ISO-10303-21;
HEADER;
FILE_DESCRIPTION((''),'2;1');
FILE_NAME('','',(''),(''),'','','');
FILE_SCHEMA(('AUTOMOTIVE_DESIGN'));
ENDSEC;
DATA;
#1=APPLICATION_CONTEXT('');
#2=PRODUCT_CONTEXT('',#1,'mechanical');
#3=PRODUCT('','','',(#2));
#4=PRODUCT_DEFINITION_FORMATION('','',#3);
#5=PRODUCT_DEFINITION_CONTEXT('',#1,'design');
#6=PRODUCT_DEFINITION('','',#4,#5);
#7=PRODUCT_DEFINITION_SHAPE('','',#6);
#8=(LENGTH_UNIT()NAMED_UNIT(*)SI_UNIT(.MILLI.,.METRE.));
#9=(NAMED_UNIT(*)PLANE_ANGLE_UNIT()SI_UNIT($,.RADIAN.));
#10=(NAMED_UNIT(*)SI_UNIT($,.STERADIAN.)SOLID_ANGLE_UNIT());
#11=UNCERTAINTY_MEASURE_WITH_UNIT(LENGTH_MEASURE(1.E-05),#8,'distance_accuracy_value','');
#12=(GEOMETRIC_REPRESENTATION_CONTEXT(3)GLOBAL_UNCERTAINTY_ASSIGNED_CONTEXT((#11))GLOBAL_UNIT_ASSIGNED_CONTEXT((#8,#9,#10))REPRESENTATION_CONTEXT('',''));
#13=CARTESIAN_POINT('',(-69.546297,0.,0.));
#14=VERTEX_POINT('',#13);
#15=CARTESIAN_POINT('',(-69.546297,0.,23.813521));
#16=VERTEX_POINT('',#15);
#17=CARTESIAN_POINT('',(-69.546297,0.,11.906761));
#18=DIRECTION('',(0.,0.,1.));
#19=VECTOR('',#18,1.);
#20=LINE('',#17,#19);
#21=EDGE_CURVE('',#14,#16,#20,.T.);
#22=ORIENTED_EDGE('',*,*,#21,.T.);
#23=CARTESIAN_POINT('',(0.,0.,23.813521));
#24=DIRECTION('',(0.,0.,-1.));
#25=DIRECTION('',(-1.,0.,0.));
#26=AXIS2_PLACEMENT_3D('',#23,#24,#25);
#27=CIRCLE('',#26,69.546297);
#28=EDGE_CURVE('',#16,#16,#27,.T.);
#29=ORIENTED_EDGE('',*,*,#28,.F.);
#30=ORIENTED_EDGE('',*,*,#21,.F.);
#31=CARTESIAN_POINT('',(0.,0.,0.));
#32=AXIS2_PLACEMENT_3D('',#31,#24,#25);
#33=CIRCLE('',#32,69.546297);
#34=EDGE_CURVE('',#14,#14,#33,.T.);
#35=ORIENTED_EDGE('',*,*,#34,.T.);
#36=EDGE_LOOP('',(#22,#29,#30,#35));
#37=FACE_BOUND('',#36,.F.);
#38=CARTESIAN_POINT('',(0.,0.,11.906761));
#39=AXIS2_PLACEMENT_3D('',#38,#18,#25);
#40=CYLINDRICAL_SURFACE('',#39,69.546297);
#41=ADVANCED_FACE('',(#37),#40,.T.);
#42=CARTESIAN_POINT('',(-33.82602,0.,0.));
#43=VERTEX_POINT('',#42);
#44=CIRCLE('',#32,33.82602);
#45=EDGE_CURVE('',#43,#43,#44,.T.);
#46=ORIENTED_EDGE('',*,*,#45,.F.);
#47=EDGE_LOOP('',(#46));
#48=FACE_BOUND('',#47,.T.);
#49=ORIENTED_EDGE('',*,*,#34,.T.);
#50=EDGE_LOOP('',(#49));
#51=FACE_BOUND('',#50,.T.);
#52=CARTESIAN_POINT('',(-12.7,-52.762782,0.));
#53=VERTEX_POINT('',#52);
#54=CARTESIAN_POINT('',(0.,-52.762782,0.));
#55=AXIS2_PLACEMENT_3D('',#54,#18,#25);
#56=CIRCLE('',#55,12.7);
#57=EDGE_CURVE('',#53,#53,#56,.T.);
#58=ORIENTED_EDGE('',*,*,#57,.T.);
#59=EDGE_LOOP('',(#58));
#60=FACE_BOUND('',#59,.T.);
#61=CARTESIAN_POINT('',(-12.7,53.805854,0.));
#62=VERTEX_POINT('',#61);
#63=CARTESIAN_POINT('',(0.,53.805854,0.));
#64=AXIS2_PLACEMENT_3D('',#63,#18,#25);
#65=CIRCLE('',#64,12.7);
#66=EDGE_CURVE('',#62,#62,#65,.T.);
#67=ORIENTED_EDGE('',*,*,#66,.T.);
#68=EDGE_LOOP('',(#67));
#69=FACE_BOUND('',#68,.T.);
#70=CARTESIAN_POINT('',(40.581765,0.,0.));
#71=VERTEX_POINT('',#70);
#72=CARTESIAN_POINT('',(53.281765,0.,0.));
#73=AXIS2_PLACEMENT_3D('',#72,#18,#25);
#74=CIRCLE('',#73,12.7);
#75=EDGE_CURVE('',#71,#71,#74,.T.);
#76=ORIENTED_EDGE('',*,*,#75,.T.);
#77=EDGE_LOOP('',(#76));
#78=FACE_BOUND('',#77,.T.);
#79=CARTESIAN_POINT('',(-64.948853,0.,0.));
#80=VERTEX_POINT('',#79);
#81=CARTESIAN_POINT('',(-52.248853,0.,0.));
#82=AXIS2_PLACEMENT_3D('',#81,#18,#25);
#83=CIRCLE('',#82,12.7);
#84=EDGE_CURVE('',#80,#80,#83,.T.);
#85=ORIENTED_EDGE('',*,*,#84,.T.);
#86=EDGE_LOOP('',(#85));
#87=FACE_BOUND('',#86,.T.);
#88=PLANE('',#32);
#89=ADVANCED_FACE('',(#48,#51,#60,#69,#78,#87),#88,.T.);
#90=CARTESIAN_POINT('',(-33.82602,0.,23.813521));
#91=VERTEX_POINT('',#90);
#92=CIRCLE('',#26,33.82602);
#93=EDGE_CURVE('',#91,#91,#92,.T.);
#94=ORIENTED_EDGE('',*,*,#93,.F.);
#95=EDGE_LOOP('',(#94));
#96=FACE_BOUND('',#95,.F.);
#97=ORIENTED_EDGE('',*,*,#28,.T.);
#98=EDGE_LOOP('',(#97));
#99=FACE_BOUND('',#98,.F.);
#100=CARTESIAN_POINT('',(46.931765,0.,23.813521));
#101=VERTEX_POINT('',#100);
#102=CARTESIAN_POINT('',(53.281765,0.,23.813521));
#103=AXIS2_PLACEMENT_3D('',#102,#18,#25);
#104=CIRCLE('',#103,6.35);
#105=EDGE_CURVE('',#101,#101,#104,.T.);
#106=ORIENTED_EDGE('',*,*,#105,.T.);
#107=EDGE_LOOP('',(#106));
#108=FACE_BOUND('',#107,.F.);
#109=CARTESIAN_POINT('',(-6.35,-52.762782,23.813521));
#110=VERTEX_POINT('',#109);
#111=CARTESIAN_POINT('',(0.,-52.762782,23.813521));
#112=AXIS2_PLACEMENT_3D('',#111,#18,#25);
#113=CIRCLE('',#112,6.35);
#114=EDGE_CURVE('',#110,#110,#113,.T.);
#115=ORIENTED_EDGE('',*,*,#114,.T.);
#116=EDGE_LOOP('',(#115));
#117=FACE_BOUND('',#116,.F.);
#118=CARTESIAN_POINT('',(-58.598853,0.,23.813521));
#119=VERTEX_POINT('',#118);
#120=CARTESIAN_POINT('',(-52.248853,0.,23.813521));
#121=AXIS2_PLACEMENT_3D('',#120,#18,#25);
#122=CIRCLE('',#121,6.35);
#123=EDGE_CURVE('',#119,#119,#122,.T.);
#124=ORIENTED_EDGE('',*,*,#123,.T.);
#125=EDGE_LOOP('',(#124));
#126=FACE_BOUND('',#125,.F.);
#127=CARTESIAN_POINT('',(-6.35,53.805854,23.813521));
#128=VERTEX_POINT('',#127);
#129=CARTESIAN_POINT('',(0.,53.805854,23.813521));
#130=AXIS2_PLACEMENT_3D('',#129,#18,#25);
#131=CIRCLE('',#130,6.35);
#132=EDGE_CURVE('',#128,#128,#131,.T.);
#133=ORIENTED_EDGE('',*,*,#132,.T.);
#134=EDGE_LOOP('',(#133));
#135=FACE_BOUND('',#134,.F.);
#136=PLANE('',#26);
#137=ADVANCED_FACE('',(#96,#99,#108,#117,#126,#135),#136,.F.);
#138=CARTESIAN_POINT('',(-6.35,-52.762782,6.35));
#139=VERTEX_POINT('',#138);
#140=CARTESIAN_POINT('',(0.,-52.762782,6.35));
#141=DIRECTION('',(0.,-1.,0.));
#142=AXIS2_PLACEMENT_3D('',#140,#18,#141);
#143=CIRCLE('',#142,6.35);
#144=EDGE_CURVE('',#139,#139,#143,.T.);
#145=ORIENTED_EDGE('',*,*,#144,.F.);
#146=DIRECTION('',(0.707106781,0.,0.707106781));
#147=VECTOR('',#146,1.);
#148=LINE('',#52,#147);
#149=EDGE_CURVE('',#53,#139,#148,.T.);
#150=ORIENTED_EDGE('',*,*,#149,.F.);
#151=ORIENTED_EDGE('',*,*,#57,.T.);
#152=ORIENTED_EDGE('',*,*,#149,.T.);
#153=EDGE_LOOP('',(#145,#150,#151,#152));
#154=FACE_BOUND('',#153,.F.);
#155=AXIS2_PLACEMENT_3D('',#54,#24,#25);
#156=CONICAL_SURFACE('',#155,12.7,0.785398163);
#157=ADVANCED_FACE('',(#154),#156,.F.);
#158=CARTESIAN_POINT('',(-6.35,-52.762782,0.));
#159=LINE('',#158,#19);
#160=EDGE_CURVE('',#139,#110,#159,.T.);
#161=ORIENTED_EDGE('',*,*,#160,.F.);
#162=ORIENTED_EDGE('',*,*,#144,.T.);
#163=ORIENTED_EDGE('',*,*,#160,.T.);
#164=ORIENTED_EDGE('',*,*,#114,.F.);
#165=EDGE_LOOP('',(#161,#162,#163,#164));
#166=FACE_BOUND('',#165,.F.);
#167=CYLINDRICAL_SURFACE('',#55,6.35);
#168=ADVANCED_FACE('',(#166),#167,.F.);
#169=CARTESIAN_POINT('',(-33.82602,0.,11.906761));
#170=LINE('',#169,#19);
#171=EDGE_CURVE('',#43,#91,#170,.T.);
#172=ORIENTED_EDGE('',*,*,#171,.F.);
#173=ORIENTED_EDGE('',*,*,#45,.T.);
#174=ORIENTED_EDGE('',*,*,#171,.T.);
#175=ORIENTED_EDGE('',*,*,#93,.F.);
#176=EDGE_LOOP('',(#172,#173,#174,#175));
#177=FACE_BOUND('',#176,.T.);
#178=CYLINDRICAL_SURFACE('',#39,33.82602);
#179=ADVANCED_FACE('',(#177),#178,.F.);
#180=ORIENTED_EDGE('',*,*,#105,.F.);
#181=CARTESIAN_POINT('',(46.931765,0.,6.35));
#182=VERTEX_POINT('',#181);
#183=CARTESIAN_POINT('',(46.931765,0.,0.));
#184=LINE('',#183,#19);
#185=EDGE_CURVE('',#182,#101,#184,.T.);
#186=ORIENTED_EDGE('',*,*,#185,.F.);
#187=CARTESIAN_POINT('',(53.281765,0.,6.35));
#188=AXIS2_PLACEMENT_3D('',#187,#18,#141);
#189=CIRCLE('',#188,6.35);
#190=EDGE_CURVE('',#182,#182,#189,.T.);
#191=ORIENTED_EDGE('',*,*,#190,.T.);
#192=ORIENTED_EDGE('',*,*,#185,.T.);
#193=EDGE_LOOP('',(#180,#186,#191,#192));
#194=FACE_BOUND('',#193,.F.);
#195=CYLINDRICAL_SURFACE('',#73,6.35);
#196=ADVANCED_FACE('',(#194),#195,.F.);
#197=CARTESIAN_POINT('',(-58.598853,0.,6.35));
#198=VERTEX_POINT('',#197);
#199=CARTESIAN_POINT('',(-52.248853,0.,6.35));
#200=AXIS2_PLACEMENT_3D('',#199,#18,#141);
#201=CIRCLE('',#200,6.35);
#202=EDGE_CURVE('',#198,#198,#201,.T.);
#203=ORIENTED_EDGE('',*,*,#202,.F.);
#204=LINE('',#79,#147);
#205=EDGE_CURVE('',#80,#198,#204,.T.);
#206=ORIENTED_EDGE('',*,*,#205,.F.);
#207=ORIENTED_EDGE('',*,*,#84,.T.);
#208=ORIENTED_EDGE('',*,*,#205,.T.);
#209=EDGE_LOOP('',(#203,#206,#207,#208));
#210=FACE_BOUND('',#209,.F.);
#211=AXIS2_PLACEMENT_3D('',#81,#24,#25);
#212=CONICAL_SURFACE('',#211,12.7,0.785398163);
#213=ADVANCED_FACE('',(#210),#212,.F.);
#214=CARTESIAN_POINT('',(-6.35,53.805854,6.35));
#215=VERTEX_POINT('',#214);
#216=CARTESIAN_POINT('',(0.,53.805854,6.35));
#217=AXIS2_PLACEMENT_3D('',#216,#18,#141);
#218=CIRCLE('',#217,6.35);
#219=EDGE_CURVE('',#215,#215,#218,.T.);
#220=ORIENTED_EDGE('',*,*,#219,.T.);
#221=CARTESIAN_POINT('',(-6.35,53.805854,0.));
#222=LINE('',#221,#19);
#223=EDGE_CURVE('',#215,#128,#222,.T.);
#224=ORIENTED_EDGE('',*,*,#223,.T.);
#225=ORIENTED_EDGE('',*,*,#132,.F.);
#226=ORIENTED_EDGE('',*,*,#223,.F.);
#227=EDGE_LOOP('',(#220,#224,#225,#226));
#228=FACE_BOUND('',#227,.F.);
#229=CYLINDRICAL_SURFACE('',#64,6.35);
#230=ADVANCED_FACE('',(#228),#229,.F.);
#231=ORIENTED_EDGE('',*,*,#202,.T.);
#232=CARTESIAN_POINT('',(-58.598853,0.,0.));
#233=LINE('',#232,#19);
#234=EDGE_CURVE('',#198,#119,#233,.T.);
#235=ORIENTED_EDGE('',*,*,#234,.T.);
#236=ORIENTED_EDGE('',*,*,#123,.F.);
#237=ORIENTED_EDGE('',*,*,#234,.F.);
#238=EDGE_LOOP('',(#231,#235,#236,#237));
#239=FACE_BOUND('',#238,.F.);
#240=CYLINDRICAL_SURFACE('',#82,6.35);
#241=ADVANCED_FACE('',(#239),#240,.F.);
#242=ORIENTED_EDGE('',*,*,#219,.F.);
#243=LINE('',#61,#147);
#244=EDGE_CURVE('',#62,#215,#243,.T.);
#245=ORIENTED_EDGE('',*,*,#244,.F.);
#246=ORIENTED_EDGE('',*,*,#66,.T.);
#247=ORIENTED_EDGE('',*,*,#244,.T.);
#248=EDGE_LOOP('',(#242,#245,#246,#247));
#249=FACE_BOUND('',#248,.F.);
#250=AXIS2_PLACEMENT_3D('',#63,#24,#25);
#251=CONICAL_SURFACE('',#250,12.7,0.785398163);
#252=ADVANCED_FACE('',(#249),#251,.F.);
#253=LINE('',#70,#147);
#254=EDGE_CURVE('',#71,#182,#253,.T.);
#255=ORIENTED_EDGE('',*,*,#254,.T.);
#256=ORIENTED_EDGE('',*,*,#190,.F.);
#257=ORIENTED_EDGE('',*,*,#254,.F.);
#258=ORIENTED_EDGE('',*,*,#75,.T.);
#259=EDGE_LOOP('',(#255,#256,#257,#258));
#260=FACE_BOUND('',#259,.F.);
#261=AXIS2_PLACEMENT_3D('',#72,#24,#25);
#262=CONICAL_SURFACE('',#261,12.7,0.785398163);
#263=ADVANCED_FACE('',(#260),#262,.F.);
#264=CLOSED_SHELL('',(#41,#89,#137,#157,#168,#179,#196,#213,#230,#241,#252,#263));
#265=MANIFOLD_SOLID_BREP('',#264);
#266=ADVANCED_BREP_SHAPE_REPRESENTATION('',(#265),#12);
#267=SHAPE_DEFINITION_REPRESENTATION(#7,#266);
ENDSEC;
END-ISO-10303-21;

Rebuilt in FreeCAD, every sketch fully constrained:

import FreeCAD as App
import Part
import Sketcher
from FreeCAD import Vector
Q = App.Units.Quantity


def add_polygon(sketch, points):
    """Adds a closed chain of lines whose ends are joined by coincident constraints."""
    first, n = sketch.GeometryCount, len(points)
    for a, b in zip(points, points[1:] + points[:1]):
        sketch.addGeometry(Part.LineSegment(App.Vector(*a, 0), App.Vector(*b, 0)), False)
    for i in range(n):
        sketch.addConstraint(Sketcher.Constraint("Coincident", first + i, 2, first + (i + 1) % n, 1))

doc = App.newDocument("Part")
body = doc.addObject("PartDesign::Body", "Body")

# Sketch on XZ plane
sketch1 = body.newObject("Sketcher::SketchObject", "Sketch")
sketch1.AttachmentSupport = (doc.getObject("XZ_Plane"), [""])
sketch1.MapMode = "FlatFace"
add_polygon(sketch1, [(-70, 24), (-70, 0), (-34, 0), (-34, 24)])  # lines 0-3
sketch1.addConstraint([
    Sketcher.Constraint("Vertical", 0),
    Sketcher.Constraint("Horizontal", 1),
    Sketcher.Constraint("Vertical", 2),
    Sketcher.Constraint("Horizontal", 3),
    Sketcher.Constraint("PointOnObject", 0, 2, -1),
    Sketcher.Constraint("DistanceY", 0, 2, 0, 1, 23.813521),
    Sketcher.Constraint("DistanceX", 1, 1, 1, 2, 35.720278),
    Sketcher.Constraint("DistanceX", 1, 2, -1, 1, 33.82602),
])
revolution = body.newObject("PartDesign::Revolution", "Revolution")
revolution.Profile = sketch1
revolution.ReferenceAxis = (sketch1, ["V_Axis"])
revolution.Angle = 360

# Sketch on XY plane
sketch2 = body.newObject("Sketcher::SketchObject", "Sketch001")
sketch2.AttachmentSupport = (doc.getObject("XY_Plane"), [""])
sketch2.MapMode = "FlatFace"
sketch2.addGeometry([
    Part.Circle(Vector(53, 0, 0), Vector(0, 0, 1), 6),
    Part.Circle(Vector(0, -53, 0), Vector(0, 0, 1), 6),
    Part.Circle(Vector(-52, 0, 0), Vector(0, 0, 1), 6),
    Part.Circle(Vector(0, 54, 0), Vector(0, 0, 1), 6),
], False)
sketch2.addConstraint([
    Sketcher.Constraint("Equal", 0, 1),
    Sketcher.Constraint("Equal", 1, 2),
    Sketcher.Constraint("Equal", 2, 3),
    Sketcher.Constraint("PointOnObject", 0, 3, -1),
    Sketcher.Constraint("PointOnObject", 1, 3, -2),
    Sketcher.Constraint("PointOnObject", 2, 3, -1),
    Sketcher.Constraint("PointOnObject", 3, 3, -2),
    Sketcher.Constraint("Diameter", 0, Q("0.5 in")),
    Sketcher.Constraint("DistanceY", 1, 3, -1, 1, 52.762782),
    Sketcher.Constraint("DistanceX", 2, 3, 0, 3, 105.530618),
    Sketcher.Constraint("DistanceX", -1, 1, 0, 3, 53.281765),
    Sketcher.Constraint("DistanceY", -1, 1, 3, 3, 53.805854),
])
doc.recompute()
hole = body.newObject("PartDesign::Hole", "Hole")
hole.Profile = sketch2
hole.ThreadType = "None"
hole.Diameter = Q("0.5 in")
hole.DepthType = "ThroughAll"
hole.HoleCutType = "Countersink"
hole.HoleCutDiameter = Q("1 in")
hole.HoleCutCountersinkAngle = 90
hole.Reversed = True

doc.recompute()
